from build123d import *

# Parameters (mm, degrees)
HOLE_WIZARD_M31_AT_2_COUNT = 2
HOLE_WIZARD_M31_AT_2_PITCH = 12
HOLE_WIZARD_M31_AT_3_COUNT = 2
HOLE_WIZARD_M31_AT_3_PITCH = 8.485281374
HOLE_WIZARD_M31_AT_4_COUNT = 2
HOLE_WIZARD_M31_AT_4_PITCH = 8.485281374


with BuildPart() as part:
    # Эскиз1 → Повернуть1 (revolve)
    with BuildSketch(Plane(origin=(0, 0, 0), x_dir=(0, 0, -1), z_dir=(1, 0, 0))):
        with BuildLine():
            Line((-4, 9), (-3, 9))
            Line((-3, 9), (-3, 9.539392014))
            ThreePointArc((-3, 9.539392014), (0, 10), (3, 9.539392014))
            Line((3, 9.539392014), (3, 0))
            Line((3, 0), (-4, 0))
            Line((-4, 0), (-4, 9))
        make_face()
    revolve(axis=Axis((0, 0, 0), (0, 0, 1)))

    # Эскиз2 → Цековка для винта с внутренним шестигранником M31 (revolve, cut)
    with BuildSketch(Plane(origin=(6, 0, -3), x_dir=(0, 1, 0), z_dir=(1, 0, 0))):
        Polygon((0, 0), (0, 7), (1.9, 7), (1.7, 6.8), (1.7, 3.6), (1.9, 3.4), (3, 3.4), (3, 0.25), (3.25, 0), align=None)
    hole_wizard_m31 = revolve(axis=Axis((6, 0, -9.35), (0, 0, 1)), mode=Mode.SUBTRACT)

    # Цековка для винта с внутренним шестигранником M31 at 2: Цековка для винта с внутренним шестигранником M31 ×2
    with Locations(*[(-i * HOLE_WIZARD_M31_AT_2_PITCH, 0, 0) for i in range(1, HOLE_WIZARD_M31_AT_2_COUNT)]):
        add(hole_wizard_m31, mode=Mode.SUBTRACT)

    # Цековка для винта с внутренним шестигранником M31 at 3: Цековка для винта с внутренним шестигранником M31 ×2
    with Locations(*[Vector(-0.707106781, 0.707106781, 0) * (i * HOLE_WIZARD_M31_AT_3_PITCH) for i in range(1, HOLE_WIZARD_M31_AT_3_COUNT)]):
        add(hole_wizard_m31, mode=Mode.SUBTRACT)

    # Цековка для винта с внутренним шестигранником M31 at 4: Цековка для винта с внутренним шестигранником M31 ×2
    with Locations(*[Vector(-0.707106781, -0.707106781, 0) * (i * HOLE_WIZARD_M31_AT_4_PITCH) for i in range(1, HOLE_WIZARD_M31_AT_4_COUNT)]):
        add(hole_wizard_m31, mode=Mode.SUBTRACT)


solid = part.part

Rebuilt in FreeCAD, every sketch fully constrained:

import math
import FreeCAD as App
import Part
import Sketcher


def add_polygon(sketch, points):
    """Adds a closed chain of lines whose ends are joined by coincident constraints."""
    first, n = sketch.GeometryCount, len(points)
    for a, b in zip(points, points[1:] + points[:1]):
        sketch.addGeometry(Part.LineSegment(App.Vector(*a, 0), App.Vector(*b, 0)), False)
    for i in range(n):
        sketch.addConstraint(Sketcher.Constraint("Coincident", first + i, 2, first + (i + 1) % n, 1))

doc = App.newDocument("Part")
body = doc.addObject("PartDesign::Body", "Body")

# Sketch on YZ plane
sketch1 = doc.addObject("Sketcher::SketchObject", "Sketch")
body.addObject(sketch1)
sketch1.AttachmentSupport = (doc.YZ_Plane, [""])
sketch1.MapMode = "FlatFace"
sketch1.addGeometry([
    Part.LineSegment(App.Vector(9, 3, 0), App.Vector(9, 4, 0)),  # 0
    Part.LineSegment(App.Vector(9, 4, 0), App.Vector(0, 4, 0)),  # 1
    Part.LineSegment(App.Vector(0, 4, 0), App.Vector(0, -3, 0)),  # 2
    Part.LineSegment(App.Vector(0, -3, 0), App.Vector(9.5, -3, 0)),  # 3
    Part.ArcOfCircle(Part.Circle(App.Vector(0, 0, 0), App.Vector(0, 0, 1), 10), math.radians(-17), math.radians(17)),  # 4
    Part.LineSegment(App.Vector(9.5, 3, 0), App.Vector(9, 3, 0)),  # 5
], False)
sketch1.addConstraint([
    Sketcher.Constraint("Coincident", 0, 2, 1, 1),
    Sketcher.Constraint("Coincident", 1, 2, 2, 1),
    Sketcher.Constraint("Coincident", 2, 2, 3, 1),
    Sketcher.Constraint("Coincident", 3, 2, 4, 1),
    Sketcher.Constraint("Coincident", 4, 2, 5, 1),
    Sketcher.Constraint("Coincident", 5, 2, 0, 1),
    Sketcher.Constraint("Vertical", 0),
    Sketcher.Constraint("Horizontal", 1),
    Sketcher.Constraint("Vertical", 2),
    Sketcher.Constraint("Horizontal", 3),
    Sketcher.Constraint("Horizontal", 5),
    Sketcher.Constraint("Coincident", 4, 3, -1, 1),
    Sketcher.Constraint("PointOnObject", 1, 2, -2),
    Sketcher.Constraint("Vertical", 3, 2, 4, 2),
    Sketcher.Constraint("Radius", 4, 10.0),
    Sketcher.Constraint("DistanceX", 1, 2, 1, 1, 9.0),
    Sketcher.Constraint("DistanceY", 0, 1, 0, 2, 1.0),
    Sketcher.Constraint("DistanceY", 2, 2, 2, 1, 7.0),
])
revolution = doc.addObject("PartDesign::Revolution", "Revolution")
body.addObject(revolution)
revolution.Profile = sketch1
revolution.ReferenceAxis = (sketch1, ["V_Axis"])
revolution.Angle = 360

# Sketch on YZ plane
sketch2 = doc.addObject("Sketcher::SketchObject", "Sketch001")
body.addObject(sketch2)
sketch2.AttachmentSupport = (doc.YZ_Plane, [""])
sketch2.MapMode = "FlatFace"
sketch2.AttachmentOffset = App.Placement(App.Vector(0, 0, 6), App.Rotation())
add_polygon(sketch2, [(0, 4), (0, -3), (3.25, -3), (3, -2.75), (3, 0.4), (1.9, 0.4), (1.7, 0.6), (1.7, 3.8), (1.9, 4)])  # lines 0-8
sketch2.addConstraint([
    Sketcher.Constraint("Vertical", 0),
    Sketcher.Constraint("Horizontal", 1),
    Sketcher.Constraint("Vertical", 3),
    Sketcher.Constraint("Horizontal", 4),
    Sketcher.Constraint("Vertical", 6),
    Sketcher.Constraint("Horizontal", 8),
    Sketcher.Constraint("PointOnObject", 0, 2, -2),
    Sketcher.Constraint("Parallel", 2, 5),
    Sketcher.Constraint("Perpendicular", 5, 7),
    Sketcher.Constraint("Vertical", 4, 2, 7, 2),
    Sketcher.Constraint("Equal", 5, 7),
    Sketcher.Constraint("DistanceY", 0, 2, 0, 1, 7.0),
    Sketcher.Constraint("DistanceX", 4, 2, 4, 1, 1.1),
    Sketcher.Constraint("DistanceX", 8, 2, 8, 1, 1.9),
    Sketcher.Constraint("DistanceY", 6, 1, 6, 2, 3.2),
    Sketcher.Constraint("DistanceY", 0, 2, -1, 1, 3.0),
    Sketcher.Constraint("DistanceX", 1, 1, 1, 2, 3.25),
    Sketcher.Constraint("DistanceY", 3, 1, 3, 2, 3.15),
])
groove = doc.addObject("PartDesign::Groove", "Groove")
body.addObject(groove)
groove.Profile = sketch2
groove.ReferenceAxis = (sketch2, ["V_Axis"])
groove.Angle = 360
doc.recompute()

linearpattern = doc.addObject("PartDesign::LinearPattern", "LinearPattern")
body.addObject(linearpattern)
linearpattern.Originals = [groove]
linearpattern.Direction = (doc.X_Axis, [""])
linearpattern.Mode = "offset"
linearpattern.Offset = 12
linearpattern.Occurrences = 2
linearpattern.Reversed = True
body.Tip = linearpattern
doc.recompute()

datumline = doc.addObject("PartDesign::Line", "DatumLine")
body.addObject(datumline)
datumline.Placement = App.Placement(App.Vector(0, 0, 0), App.Rotation(App.Vector(0, 0, 1), App.Vector(-0.707106781, 0.707106781, 0)))
linearpattern2 = doc.addObject("PartDesign::LinearPattern", "LinearPattern001")
body.addObject(linearpattern2)
linearpattern2.Originals = [groove]
linearpattern2.Direction = (datumline, [""])
linearpattern2.Mode = "offset"
linearpattern2.Offset = 8.485281
linearpattern2.Occurrences = 2
body.Tip = linearpattern2
doc.recompute()

datumline2 = doc.addObject("PartDesign::Line", "DatumLine001")
body.addObject(datumline2)
datumline2.Placement = App.Placement(App.Vector(0, 0, 0), App.Rotation(App.Vector(0, 0, 1), App.Vector(-0.707106781, -0.707106781, 0)))
linearpattern3 = doc.addObject("PartDesign::LinearPattern", "LinearPattern002")
body.addObject(linearpattern3)
linearpattern3.Originals = [groove]
linearpattern3.Direction = (datumline2, [""])
linearpattern3.Mode = "offset"
linearpattern3.Offset = 8.485281
linearpattern3.Occurrences = 2
body.Tip = linearpattern3

doc.recompute()
